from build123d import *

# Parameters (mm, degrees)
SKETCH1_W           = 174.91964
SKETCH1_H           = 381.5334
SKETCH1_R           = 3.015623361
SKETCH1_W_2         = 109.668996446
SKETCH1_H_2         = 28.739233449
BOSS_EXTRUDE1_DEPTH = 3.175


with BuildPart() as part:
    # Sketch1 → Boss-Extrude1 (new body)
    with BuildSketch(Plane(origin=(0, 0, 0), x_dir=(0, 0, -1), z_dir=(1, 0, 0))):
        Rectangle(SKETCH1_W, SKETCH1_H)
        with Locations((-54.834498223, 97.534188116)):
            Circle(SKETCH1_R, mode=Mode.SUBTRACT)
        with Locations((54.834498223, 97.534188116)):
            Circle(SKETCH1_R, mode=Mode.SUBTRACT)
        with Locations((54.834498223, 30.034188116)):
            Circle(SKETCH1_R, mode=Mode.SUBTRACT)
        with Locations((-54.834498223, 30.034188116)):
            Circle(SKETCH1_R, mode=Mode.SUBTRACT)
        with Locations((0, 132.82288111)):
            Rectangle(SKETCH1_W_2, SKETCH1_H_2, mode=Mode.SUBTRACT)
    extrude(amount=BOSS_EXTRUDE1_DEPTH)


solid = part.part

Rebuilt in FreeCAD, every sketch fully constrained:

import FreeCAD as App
import Part
import Sketcher

V = App.Vector
Q = App.Units.Quantity


def add_polygon(sketch, points):
    """Adds a closed chain of lines whose ends are joined by coincident constraints."""
    first, n = sketch.GeometryCount, len(points)
    for a, b in zip(points, points[1:] + points[:1]):
        sketch.addGeometry(Part.LineSegment(App.Vector(*a, 0), App.Vector(*b, 0)), False)
    for i in range(n):
        sketch.addConstraint(Sketcher.Constraint("Coincident", first + i, 2, first + (i + 1) % n, 1))

doc = App.newDocument("Part")
body = doc.addObject("PartDesign::Body", "Body")

# Sketch on YZ plane
sketch1 = body.newObject("Sketcher::SketchObject", "Sketch")
sketch1.AttachmentSupport = (doc.getObject("YZ_Plane"), [""])
sketch1.MapMode = "FlatFace"
add_polygon(sketch1, [(190.8, 87.5), (-190.8, 87.5), (-190.8, -87.5), (190.8, -87.5)])  # lines 0-3
sketch1.addGeometry(Part.Circle(V(30, 54.8, 0), V(0, 0, 1), 3), False)  # 4
sketch1.addGeometry(Part.Circle(V(30, -54.8, 0), V(0, 0, 1), 3), False)  # 5
sketch1.addGeometry(Part.Circle(V(97.5, 54.8, 0), V(0, 0, 1), 3), False)  # 6
sketch1.addGeometry(Part.Circle(V(97.5, -54.8, 0), V(0, 0, 1), 3), False)  # 7
add_polygon(sketch1, [(118.5, -54.8), (118.5, 54.8), (147.2, 54.8), (147.2, -54.8)])  # lines 8-11
sketch1.addConstraint(Sketcher.Constraint("Horizontal", 0))
sketch1.addConstraint(Sketcher.Constraint("Vertical", 1))
sketch1.addConstraint(Sketcher.Constraint("Horizontal", 2))
sketch1.addConstraint(Sketcher.Constraint("Vertical", 3))
sketch1.addConstraint(Sketcher.Constraint("Vertical", 8))
sketch1.addConstraint(Sketcher.Constraint("Horizontal", 9))
sketch1.addConstraint(Sketcher.Constraint("Vertical", 10))
sketch1.addConstraint(Sketcher.Constraint("Horizontal", 11))
sketch1.addConstraint(Sketcher.Constraint("Equal", 4, 5))
sketch1.addConstraint(Sketcher.Constraint("Equal", 5, 6))
sketch1.addConstraint(Sketcher.Constraint("Equal", 6, 7))
sketch1.addConstraint(Sketcher.Constraint("Symmetric", 0, 2, 2, 2, -1, 1))
sketch1.addConstraint(Sketcher.Constraint("Symmetric", 4, 3, 5, 3, -1))
sketch1.addConstraint(Sketcher.Constraint("Symmetric", 6, 3, 7, 3, -1))
sketch1.addConstraint(Sketcher.Constraint("Horizontal", 4, 3, 6, 3))
sketch1.addConstraint(Sketcher.Constraint("Horizontal", 6, 3, 8, 2))
sketch1.addConstraint(Sketcher.Constraint("Horizontal", 7, 3, 10, 2))
sketch1.addConstraint(Sketcher.Constraint("DistanceX", 0, 2, 0, 1, Q("15.021 in")))
sketch1.addConstraint(Sketcher.Constraint("DistanceY", 1, 2, 1, 1, Q("6.8866 in")))
sketch1.addConstraint(Sketcher.Constraint("Diameter", 4, Q("6.031247 mm")))
sketch1.addConstraint(Sketcher.Constraint("DistanceY", -1, 1, 4, 3, Q("54.834498 mm")))
sketch1.addConstraint(Sketcher.Constraint("DistanceX", 4, 3, 6, 3, Q("67.5 mm")))
sketch1.addConstraint(Sketcher.Constraint("DistanceX", 9, 1, 9, 2, Q("28.739233 mm")))
sketch1.addConstraint(Sketcher.Constraint("DistanceX", -1, 1, 4, 3, Q("30.034188 mm")))
sketch1.addConstraint(Sketcher.Constraint("DistanceX", 6, 3, 9, 2, Q("49.65831 mm")))
pad1 = body.newObject("PartDesign::Pad", "Pad")
pad1.Profile = sketch1
pad1.Length = Q("0.125 in")

doc.recompute()
